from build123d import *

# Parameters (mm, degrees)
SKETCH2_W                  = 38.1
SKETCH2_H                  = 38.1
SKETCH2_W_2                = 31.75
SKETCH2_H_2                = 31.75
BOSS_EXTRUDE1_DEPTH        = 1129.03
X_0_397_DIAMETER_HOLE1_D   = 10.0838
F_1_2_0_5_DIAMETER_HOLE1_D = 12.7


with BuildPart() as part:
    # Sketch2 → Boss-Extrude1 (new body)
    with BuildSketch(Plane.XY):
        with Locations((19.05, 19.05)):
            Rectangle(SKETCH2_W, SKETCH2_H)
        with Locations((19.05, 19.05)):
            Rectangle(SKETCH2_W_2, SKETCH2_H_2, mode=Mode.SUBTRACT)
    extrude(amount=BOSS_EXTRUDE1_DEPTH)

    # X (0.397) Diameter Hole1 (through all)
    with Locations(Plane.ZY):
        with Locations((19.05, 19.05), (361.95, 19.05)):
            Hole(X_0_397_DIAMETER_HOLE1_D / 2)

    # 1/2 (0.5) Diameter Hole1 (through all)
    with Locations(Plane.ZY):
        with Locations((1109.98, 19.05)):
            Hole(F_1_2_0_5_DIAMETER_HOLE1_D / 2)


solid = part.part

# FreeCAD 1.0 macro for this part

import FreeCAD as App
import Part
import Sketcher
from FreeCAD import Vector
Q = App.Units.Quantity


def add_polygon(sketch, points):
    """Adds a closed chain of lines whose ends are joined by coincident constraints."""
    first, n = sketch.GeometryCount, len(points)
    for a, b in zip(points, points[1:] + points[:1]):
        sketch.addGeometry(Part.LineSegment(App.Vector(*a, 0), App.Vector(*b, 0)), False)
    for i in range(n):
        sketch.addConstraint(Sketcher.Constraint("Coincident", first + i, 2, first + (i + 1) % n, 1))

doc = App.newDocument("Part")
body = doc.addObject("PartDesign::Body", "Body")

# Sketch on XY plane
sketch1 = body.newObject("Sketcher::SketchObject", "Sketch")
sketch1.AttachmentSupport = (doc.getObject("XY_Plane"), [""])
sketch1.MapMode = "FlatFace"
add_polygon(sketch1, [(0, 38), (0, 0), (38, 0), (38, 38)])  # lines 0-3
add_polygon(sketch1, [(35, 3), (3, 3), (3, 35), (35, 35)])  # lines 4-7
sketch1.addConstraint([
    Sketcher.Constraint("Vertical", 0),
    Sketcher.Constraint("Horizontal", 1),
    Sketcher.Constraint("Vertical", 2),
    Sketcher.Constraint("Horizontal", 3),
    Sketcher.Constraint("Horizontal", 4),
    Sketcher.Constraint("Vertical", 5),
    Sketcher.Constraint("Horizontal", 6),
    Sketcher.Constraint("Vertical", 7),
    Sketcher.Constraint("Coincident", 0, 2, -1, 1),
    Sketcher.Constraint("Equal", 3, 0),
    Sketcher.Constraint("Equal", 6, 5),
    Sketcher.Constraint("DistanceX", 1, 1, 1, 2, Q("1.5 in")),
    Sketcher.Constraint("DistanceX", 4, 2, 4, 1, Q("1.25 in")),
    Sketcher.Constraint("DistanceX", -1, 1, 4, 2, Q("0.125 in")),
    Sketcher.Constraint("DistanceY", -1, 1, 4, 2, Q("0.125 in")),
])
pad1 = body.newObject("PartDesign::Pad", "Pad")
pad1.Profile = sketch1
pad1.Length = Q("44.45 in")

# Sketch on YZ plane
sketch2 = body.newObject("Sketcher::SketchObject", "Sketch001")
sketch2.AttachmentSupport = (doc.getObject("YZ_Plane"), [""])
sketch2.MapMode = "FlatFace"
sketch2.addGeometry([
    Part.Circle(Vector(19, 19, 0), Vector(0, 0, 1), 5),
    Part.Circle(Vector(19, 362, 0), Vector(0, 0, 1), 5),
], False)
sketch2.addConstraint([
    Sketcher.Constraint("Equal", 0, 1),
    Sketcher.Constraint("Vertical", 0, 3, 1, 3),
    Sketcher.Constraint("Diameter", 0, Q("0.397 in")),
    Sketcher.Constraint("DistanceY", 0, 3, 1, 3, Q("13.5 in")),
    Sketcher.Constraint("DistanceX", -1, 1, 0, 3, Q("0.75 in")),
    Sketcher.Constraint("DistanceY", -1, 1, 0, 3, Q("0.75 in")),
])
doc.recompute()
hole = body.newObject("PartDesign::Hole", "Hole")
hole.Profile = sketch2
hole.ThreadType = "None"
hole.Diameter = Q("0.397 in")
hole.DepthType = "ThroughAll"
hole.Reversed = True

# Sketch on YZ plane
sketch3 = body.newObject("Sketcher::SketchObject", "Sketch002")
sketch3.AttachmentSupport = (doc.getObject("YZ_Plane"), [""])
sketch3.MapMode = "FlatFace"
sketch3.addGeometry(Part.Circle(Vector(19, 1110, 0), Vector(0, 0, 1), 6), False)
sketch3.addConstraint([
    Sketcher.Constraint("Diameter", 0, Q("0.5 in")),
    Sketcher.Constraint("DistanceY", -1, 1, 0, 3, Q("43.7 in")),
    Sketcher.Constraint("DistanceX", -1, 1, 0, 3, Q("0.75 in")),
])
doc.recompute()
hole2 = body.newObject("PartDesign::Hole", "Hole001")
hole2.Profile = sketch3
hole2.ThreadType = "None"
hole2.Diameter = Q("0.5 in")
hole2.DepthType = "ThroughAll"
hole2.Reversed = True

doc.recompute()
